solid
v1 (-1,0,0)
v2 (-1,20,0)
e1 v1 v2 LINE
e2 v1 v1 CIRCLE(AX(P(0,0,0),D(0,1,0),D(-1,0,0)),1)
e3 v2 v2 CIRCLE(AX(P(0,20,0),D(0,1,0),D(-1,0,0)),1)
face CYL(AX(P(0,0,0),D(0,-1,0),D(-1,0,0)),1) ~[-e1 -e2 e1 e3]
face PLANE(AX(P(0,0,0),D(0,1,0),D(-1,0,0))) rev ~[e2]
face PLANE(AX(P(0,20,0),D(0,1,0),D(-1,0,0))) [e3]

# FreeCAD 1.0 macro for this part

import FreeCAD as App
import Part
import Sketcher

V = App.Vector
Q = App.Units.Quantity

doc = App.newDocument("Part")
params = doc.addObject("Spreadsheet::Sheet", "Params")
for row, (alias, value) in enumerate([
    ("sketch1_diameter", "2 mm"),
    ("pad1_length", "20 mm"),
], start=1):
    params.set(f"A{row}", alias)
    params.set(f"B{row}", "=" + value)
    params.setAlias(f"B{row}", alias)

body = doc.addObject("PartDesign::Body", "Body")

sketch1 = doc.addObject("Sketcher::SketchObject", "Sketch")
body.addObject(sketch1)
sketch1.AttachmentSupport = (doc.XZ_Plane, [""])
sketch1.MapMode = "FlatFace"
sketch1.addGeometry(Part.Circle(V(0, 0, 0), V(0, 0, 1), 1), False)
sketch1.addConstraint(Sketcher.Constraint("Coincident", 0, 3, -1, 1))
sketch1.addConstraint(Sketcher.Constraint("Diameter", 0, Q("2 mm")))
sketch1.setExpression("Constraints[1]", "Params.sketch1_diameter")
pad1 = doc.addObject("PartDesign::Pad", "Pad")
body.addObject(pad1)
pad1.Profile = sketch1
pad1.setExpression("Length", "Params.pad1_length")
pad1.Reversed = True

doc.recompute()
